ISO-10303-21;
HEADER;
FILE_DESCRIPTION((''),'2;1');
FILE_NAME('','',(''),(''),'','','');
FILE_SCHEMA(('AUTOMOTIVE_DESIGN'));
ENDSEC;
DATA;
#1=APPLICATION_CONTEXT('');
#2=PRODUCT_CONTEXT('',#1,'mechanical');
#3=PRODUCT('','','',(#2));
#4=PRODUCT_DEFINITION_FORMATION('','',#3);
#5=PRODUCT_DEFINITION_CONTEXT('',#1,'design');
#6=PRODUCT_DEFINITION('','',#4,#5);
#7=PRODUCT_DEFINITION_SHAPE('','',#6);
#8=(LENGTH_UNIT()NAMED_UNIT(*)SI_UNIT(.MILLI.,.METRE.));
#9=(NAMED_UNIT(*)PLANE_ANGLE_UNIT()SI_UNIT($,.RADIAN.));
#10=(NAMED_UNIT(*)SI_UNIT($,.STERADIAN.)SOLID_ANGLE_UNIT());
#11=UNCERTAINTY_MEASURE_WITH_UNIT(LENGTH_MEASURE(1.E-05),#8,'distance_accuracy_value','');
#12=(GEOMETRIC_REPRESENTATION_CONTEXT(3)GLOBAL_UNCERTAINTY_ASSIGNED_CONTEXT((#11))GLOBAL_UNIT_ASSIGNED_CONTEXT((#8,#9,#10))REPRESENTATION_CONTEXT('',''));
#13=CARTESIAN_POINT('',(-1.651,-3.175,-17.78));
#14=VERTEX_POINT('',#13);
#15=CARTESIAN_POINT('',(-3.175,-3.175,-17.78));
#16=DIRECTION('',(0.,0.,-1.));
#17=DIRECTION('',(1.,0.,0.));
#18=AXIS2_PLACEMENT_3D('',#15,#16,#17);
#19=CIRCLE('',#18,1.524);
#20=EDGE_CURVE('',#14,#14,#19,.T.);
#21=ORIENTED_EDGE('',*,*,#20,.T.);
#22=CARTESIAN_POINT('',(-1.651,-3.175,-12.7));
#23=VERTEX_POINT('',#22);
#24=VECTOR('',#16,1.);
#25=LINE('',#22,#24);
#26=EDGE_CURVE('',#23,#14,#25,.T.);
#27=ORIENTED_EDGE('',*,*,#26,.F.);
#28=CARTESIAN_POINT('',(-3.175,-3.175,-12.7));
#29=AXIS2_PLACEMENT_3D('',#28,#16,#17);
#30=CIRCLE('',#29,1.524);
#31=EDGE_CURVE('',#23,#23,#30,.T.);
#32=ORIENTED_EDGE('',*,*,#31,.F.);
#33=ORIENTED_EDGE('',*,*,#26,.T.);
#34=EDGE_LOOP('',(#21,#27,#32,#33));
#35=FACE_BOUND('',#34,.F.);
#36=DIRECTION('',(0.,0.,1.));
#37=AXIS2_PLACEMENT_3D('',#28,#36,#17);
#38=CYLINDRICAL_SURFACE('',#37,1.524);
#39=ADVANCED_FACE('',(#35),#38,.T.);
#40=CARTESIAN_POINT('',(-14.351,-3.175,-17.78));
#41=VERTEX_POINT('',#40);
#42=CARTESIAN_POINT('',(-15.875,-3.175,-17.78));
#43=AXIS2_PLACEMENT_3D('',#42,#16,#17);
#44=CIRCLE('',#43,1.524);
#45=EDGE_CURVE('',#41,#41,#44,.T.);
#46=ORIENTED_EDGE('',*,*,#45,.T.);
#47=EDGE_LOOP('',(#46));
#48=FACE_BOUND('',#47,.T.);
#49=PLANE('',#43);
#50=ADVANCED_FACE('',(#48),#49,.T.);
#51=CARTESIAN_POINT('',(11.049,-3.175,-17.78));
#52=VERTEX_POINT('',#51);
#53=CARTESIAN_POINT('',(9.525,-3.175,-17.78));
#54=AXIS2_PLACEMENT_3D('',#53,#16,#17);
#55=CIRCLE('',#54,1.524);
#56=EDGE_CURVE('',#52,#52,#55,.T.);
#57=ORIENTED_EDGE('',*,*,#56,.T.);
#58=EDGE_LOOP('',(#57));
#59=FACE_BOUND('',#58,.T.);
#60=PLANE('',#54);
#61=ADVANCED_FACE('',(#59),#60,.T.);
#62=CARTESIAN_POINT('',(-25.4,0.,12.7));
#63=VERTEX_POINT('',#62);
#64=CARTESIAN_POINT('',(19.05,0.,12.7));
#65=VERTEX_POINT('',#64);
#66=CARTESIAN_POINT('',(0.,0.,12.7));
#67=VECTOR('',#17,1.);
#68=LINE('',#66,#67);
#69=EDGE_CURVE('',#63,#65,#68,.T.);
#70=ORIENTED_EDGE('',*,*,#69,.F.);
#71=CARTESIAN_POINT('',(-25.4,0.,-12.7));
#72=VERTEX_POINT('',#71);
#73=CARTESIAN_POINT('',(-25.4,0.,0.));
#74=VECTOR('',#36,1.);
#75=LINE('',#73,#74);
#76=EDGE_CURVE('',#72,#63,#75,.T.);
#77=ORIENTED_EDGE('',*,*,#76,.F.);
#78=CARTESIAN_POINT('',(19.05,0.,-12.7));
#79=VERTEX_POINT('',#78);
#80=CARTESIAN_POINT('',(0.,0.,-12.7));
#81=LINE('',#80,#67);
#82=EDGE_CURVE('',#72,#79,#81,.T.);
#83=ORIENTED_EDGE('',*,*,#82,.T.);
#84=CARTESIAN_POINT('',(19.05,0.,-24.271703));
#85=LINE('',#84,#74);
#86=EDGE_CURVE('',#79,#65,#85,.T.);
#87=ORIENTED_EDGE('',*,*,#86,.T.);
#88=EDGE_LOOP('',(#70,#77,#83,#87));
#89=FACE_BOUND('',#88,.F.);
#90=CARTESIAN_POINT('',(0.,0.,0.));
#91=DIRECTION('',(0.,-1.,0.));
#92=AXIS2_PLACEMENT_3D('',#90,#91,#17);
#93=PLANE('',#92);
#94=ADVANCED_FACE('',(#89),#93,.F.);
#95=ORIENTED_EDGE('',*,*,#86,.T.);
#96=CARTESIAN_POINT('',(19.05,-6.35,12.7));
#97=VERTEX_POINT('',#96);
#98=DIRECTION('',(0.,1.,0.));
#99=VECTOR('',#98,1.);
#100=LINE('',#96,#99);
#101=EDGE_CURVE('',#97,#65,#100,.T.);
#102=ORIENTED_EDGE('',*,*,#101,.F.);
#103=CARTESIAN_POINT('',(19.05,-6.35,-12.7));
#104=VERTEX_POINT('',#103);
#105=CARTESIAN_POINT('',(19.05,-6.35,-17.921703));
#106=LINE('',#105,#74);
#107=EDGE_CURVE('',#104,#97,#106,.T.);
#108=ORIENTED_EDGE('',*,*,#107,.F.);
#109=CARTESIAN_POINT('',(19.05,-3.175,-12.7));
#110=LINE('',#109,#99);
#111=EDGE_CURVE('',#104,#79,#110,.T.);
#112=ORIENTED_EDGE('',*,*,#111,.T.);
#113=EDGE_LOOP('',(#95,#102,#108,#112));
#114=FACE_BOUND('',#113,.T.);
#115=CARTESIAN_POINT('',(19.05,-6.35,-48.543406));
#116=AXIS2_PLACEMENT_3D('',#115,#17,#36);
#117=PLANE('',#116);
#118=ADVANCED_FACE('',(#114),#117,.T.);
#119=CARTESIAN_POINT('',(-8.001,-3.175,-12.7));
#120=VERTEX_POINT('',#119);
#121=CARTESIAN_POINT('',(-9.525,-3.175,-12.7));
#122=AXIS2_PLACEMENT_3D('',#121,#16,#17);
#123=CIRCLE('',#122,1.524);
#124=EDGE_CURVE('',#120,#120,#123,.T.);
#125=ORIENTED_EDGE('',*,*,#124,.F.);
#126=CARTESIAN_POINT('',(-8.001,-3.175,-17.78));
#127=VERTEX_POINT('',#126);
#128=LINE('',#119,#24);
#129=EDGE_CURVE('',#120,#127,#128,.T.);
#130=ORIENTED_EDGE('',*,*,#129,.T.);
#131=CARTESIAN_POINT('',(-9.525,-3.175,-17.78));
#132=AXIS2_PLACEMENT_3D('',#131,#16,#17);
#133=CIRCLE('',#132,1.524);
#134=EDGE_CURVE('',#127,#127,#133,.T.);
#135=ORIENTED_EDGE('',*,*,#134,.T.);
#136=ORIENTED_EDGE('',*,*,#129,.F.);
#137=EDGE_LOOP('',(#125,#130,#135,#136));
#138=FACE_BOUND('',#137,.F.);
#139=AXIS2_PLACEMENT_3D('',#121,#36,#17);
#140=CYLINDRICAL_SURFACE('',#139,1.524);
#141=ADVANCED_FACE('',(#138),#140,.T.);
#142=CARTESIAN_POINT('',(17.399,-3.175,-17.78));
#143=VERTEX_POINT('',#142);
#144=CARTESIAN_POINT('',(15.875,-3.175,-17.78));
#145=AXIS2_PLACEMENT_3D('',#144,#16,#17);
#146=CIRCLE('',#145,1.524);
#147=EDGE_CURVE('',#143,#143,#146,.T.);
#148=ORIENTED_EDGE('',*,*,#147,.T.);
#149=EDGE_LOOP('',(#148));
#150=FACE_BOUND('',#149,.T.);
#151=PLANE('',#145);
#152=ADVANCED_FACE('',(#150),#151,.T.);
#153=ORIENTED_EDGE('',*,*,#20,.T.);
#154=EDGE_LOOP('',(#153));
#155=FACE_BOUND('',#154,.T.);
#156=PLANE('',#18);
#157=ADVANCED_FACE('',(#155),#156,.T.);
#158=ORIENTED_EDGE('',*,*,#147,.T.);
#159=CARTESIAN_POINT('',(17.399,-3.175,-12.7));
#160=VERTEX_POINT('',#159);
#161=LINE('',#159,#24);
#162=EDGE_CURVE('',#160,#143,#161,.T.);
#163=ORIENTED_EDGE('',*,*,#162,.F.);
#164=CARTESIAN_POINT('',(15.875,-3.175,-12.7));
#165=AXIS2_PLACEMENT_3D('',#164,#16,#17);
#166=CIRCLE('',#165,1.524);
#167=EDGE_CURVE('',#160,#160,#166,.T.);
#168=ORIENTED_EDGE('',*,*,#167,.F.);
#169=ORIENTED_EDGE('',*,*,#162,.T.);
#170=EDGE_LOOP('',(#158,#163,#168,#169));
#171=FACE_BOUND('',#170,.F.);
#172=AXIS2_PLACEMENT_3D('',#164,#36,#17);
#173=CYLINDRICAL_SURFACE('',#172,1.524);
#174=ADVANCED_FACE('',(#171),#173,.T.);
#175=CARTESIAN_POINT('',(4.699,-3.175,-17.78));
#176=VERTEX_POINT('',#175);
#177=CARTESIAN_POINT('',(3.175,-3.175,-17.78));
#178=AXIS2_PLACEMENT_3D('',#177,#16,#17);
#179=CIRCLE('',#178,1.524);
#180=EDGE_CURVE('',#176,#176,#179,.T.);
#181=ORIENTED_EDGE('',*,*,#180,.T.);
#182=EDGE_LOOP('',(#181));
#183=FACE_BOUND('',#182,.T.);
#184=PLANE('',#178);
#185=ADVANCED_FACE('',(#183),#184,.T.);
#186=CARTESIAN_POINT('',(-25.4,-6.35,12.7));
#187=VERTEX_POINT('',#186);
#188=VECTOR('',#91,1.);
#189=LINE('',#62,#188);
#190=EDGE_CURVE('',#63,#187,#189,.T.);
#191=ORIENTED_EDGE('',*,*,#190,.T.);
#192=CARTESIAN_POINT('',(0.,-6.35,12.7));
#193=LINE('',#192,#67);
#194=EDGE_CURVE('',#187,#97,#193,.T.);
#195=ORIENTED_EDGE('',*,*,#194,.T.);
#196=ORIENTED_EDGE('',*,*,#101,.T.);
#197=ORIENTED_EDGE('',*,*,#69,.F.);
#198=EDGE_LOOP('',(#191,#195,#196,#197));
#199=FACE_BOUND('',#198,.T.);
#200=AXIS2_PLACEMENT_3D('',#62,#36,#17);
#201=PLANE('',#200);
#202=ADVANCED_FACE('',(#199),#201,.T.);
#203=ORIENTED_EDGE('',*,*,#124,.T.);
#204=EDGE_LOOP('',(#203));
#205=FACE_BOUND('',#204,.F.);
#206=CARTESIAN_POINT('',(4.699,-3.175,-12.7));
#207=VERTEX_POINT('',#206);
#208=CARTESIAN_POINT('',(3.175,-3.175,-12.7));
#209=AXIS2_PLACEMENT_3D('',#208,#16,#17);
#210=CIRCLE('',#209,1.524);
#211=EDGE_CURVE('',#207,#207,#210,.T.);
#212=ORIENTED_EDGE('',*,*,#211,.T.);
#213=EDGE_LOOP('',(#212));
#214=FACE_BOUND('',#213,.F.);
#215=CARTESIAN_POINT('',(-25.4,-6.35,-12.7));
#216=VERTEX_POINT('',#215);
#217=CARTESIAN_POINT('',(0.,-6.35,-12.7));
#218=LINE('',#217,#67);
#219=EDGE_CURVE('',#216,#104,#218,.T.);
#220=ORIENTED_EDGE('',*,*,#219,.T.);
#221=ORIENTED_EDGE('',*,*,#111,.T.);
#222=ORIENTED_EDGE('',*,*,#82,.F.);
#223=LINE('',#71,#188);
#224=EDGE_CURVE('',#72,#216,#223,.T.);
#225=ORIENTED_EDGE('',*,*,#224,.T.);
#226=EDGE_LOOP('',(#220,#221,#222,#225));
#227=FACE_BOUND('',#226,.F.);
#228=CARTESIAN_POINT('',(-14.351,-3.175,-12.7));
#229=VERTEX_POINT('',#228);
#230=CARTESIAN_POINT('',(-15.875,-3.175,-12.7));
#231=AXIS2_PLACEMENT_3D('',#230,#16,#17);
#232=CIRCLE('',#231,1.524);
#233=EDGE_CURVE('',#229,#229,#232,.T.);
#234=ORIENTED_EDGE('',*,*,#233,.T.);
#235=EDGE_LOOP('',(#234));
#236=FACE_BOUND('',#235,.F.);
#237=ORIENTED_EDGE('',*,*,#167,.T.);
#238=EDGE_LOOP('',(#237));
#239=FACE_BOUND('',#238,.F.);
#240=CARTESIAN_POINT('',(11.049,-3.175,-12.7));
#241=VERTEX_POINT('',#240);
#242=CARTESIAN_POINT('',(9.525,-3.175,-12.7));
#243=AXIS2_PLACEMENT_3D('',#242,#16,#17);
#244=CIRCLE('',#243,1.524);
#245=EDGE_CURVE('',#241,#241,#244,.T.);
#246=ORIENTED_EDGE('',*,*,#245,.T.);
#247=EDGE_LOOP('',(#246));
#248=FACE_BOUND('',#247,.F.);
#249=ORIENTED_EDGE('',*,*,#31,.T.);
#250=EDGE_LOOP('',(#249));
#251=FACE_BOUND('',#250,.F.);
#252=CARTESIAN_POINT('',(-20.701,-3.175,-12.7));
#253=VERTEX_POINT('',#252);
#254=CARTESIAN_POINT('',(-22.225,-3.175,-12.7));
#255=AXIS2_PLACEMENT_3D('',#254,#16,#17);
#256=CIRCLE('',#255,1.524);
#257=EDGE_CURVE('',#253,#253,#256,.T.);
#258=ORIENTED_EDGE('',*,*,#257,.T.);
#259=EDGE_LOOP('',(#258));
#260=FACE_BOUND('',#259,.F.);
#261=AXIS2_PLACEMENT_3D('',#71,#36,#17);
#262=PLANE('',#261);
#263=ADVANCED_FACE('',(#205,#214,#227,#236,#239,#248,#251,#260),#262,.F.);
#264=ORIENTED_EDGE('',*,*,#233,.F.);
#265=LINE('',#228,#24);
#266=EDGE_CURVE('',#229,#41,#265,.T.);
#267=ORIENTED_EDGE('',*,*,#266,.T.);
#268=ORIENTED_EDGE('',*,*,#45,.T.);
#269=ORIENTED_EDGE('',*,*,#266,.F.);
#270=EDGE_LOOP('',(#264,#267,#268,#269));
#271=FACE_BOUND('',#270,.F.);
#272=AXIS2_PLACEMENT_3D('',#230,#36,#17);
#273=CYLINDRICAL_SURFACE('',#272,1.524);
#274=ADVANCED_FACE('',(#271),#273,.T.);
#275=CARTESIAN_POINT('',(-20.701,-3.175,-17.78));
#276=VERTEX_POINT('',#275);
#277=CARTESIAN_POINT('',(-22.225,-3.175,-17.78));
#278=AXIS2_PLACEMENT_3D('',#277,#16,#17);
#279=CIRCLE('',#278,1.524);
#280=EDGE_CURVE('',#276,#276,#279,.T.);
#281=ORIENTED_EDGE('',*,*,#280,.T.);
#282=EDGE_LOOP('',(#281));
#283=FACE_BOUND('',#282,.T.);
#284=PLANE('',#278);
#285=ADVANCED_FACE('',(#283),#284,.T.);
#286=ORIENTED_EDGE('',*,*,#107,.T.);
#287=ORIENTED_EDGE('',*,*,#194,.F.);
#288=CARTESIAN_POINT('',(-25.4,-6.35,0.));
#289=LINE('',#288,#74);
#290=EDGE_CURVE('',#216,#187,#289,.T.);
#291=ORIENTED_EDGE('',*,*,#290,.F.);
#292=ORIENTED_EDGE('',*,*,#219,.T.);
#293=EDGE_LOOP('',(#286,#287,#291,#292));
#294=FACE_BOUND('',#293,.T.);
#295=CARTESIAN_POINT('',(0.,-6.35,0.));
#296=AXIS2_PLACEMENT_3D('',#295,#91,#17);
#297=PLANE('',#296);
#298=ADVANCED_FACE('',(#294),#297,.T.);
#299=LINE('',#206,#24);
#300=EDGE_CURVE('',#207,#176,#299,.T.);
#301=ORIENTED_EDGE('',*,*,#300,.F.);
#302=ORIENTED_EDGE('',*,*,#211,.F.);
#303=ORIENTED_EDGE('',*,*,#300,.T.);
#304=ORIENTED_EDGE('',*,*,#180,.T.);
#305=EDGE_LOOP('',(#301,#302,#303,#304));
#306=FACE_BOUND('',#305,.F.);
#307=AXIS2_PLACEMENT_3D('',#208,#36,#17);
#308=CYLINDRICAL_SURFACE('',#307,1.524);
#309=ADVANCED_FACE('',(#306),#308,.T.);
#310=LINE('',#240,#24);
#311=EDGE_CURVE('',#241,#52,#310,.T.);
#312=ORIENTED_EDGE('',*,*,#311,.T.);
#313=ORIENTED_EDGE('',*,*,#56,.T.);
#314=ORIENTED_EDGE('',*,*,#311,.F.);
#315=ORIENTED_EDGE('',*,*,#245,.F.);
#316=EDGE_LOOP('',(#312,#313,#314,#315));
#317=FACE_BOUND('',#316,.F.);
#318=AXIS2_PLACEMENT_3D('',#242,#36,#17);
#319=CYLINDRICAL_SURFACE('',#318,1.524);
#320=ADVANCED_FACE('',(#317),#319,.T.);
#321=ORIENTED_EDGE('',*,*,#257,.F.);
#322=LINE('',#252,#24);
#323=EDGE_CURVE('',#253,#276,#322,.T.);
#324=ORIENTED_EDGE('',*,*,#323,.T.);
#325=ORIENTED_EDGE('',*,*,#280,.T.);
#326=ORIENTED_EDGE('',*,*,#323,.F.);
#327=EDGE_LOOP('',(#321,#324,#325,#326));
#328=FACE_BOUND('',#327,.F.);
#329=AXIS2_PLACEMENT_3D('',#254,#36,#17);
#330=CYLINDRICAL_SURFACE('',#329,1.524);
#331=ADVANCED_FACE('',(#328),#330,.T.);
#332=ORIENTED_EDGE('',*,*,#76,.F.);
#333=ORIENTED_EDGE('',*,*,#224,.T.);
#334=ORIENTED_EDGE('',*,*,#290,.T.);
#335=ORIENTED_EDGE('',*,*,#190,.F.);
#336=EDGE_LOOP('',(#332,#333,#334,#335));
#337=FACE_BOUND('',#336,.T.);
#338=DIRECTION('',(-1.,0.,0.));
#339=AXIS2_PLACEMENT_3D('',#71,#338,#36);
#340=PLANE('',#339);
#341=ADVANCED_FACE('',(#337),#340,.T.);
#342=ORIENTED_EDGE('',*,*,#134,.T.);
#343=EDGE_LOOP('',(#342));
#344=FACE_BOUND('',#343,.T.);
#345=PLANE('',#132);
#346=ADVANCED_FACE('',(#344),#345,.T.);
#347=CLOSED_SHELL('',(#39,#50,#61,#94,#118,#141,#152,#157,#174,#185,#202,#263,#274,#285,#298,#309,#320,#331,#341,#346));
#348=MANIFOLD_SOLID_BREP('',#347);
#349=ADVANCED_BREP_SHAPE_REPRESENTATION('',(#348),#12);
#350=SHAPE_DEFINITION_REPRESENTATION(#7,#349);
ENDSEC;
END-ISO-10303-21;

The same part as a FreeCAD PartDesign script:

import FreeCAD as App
import Part
import Sketcher
Q = App.Units.Quantity


def add_polygon(sketch, points):
    """Adds a closed chain of lines whose ends are joined by coincident constraints."""
    first, n = sketch.GeometryCount, len(points)
    for a, b in zip(points, points[1:] + points[:1]):
        sketch.addGeometry(Part.LineSegment(App.Vector(*a, 0), App.Vector(*b, 0)), False)
    for i in range(n):
        sketch.addConstraint(Sketcher.Constraint("Coincident", first + i, 2, first + (i + 1) % n, 1))

doc = App.newDocument("Part")
body = doc.addObject("PartDesign::Body", "Body")

# Sketch on XZ plane
sketch1 = doc.addObject("Sketcher::SketchObject", "Sketch")
body.addObject(sketch1)
sketch1.AttachmentSupport = (doc.XZ_Plane, [""])
sketch1.MapMode = "FlatFace"
add_polygon(sketch1, [(-25, 13), (-25, -13), (25, -13), (25, 13)])  # lines 0-3
sketch1.addConstraint([
    Sketcher.Constraint("Vertical", 0),
    Sketcher.Constraint("Horizontal", 1),
    Sketcher.Constraint("Vertical", 2),
    Sketcher.Constraint("Horizontal", 3),
    Sketcher.Constraint("Symmetric", 0, 2, 2, 2, -1, 1),
    Sketcher.Constraint("DistanceX", 1, 1, 1, 2, Q("2 in")),
    Sketcher.Constraint("DistanceY", 0, 2, 0, 1, Q("1 in")),
])
pad1 = doc.addObject("PartDesign::Pad", "Pad")
body.addObject(pad1)
pad1.Profile = sketch1
pad1.Length = Q("0.25 in")

# Sketch on XY plane
sketch2 = doc.addObject("Sketcher::SketchObject", "Sketch001")
body.addObject(sketch2)
sketch2.AttachmentSupport = (doc.XY_Plane, [""])
sketch2.MapMode = "FlatFace"
sketch2.AttachmentOffset = App.Placement(App.Vector(0, 0, -0.5 * 25.4), App.Rotation())
sketch2.addGeometry([
    Part.Circle(App.Vector(-22.2, -3.2, 0), App.Vector(0, 0, 1), 1.5),  # 0
    Part.Circle(App.Vector(-15.9, -3.2, 0), App.Vector(0, 0, 1), 1.5),  # 1
    Part.Circle(App.Vector(-9.5, -3.2, 0), App.Vector(0, 0, 1), 1.5),  # 2
    Part.Circle(App.Vector(-3.2, -3.2, 0), App.Vector(0, 0, 1), 1.5),  # 3
    Part.Circle(App.Vector(3.2, -3.2, 0), App.Vector(0, 0, 1), 1.5),  # 4
    Part.Circle(App.Vector(9.5, -3.2, 0), App.Vector(0, 0, 1), 1.5),  # 5
    Part.Circle(App.Vector(15.9, -3.2, 0), App.Vector(0, 0, 1), 1.5),  # 6
    Part.Circle(App.Vector(22.2, -3.2, 0), App.Vector(0, 0, 1), 1.5),  # 7
], False)
sketch2.addConstraint([
    Sketcher.Constraint("Equal", 0, 1),
    Sketcher.Constraint("Equal", 1, 2),
    Sketcher.Constraint("Equal", 2, 3),
    Sketcher.Constraint("Equal", 3, 4),
    Sketcher.Constraint("Equal", 4, 5),
    Sketcher.Constraint("Equal", 5, 6),
    Sketcher.Constraint("Equal", 6, 7),
    Sketcher.Constraint("Symmetric", 3, 3, 4, 3, -2),
    Sketcher.Constraint("Symmetric", 2, 3, 5, 3, -2),
    Sketcher.Constraint("Symmetric", 1, 3, 6, 3, -2),
    Sketcher.Constraint("Symmetric", 0, 3, 7, 3, -2),
    Sketcher.Constraint("Horizontal", 0, 3, 1, 3),
    Sketcher.Constraint("Horizontal", 1, 3, 2, 3),
    Sketcher.Constraint("Horizontal", 2, 3, 3, 3),
    Sketcher.Constraint("Diameter", 0, Q("0.12 in")),
    Sketcher.Constraint("DistanceX", 0, 3, 4, 3, Q("1 in")),
    Sketcher.Constraint("DistanceX", 1, 3, 5, 3, Q("1 in")),
    Sketcher.Constraint("DistanceX", 0, 3, 2, 3, Q("0.5 in")),
    Sketcher.Constraint("DistanceX", 0, 3, 1, 3, Q("0.25 in")),
    Sketcher.Constraint("DistanceY", 0, 3, -1, 1, Q("0.125 in")),
])
pad2 = doc.addObject("PartDesign::Pad", "Pad001")
body.addObject(pad2)
pad2.Profile = sketch2
pad2.Length = Q("0.2 in")
pad2.Reversed = True

# Sketch on XZ plane
sketch3 = doc.addObject("Sketcher::SketchObject", "Sketch002")
body.addObject(sketch3)
sketch3.AttachmentSupport = (doc.XZ_Plane, [""])
sketch3.MapMode = "FlatFace"
sketch3.AttachmentOffset = App.Placement(App.Vector(0, 0, 0.25 * 25.4), App.Rotation())
add_polygon(sketch3, [(19, 13), (19, -49), (25, -49), (25, 13)])  # lines 0-3
sketch3.addConstraint([
    Sketcher.Constraint("Vertical", 0),
    Sketcher.Constraint("Horizontal", 1),
    Sketcher.Constraint("Vertical", 2),
    Sketcher.Constraint("Horizontal", 3),
    Sketcher.Constraint("DistanceX", -1, 1, 1, 2, Q("1 in")),
    Sketcher.Constraint("DistanceX", 1, 1, 1, 2, Q("0.25 in")),
    Sketcher.Constraint("DistanceY", -1, 1, 2, 2, Q("0.5 in")),
    Sketcher.Constraint("DistanceY", 0, 2, 0, 1, Q("61.243406 mm")),
])
pocket1 = doc.addObject("PartDesign::Pocket", "Pocket")
body.addObject(pocket1)
pocket1.Profile = sketch3
pocket1.Length = Q("1 in")

doc.recompute()
